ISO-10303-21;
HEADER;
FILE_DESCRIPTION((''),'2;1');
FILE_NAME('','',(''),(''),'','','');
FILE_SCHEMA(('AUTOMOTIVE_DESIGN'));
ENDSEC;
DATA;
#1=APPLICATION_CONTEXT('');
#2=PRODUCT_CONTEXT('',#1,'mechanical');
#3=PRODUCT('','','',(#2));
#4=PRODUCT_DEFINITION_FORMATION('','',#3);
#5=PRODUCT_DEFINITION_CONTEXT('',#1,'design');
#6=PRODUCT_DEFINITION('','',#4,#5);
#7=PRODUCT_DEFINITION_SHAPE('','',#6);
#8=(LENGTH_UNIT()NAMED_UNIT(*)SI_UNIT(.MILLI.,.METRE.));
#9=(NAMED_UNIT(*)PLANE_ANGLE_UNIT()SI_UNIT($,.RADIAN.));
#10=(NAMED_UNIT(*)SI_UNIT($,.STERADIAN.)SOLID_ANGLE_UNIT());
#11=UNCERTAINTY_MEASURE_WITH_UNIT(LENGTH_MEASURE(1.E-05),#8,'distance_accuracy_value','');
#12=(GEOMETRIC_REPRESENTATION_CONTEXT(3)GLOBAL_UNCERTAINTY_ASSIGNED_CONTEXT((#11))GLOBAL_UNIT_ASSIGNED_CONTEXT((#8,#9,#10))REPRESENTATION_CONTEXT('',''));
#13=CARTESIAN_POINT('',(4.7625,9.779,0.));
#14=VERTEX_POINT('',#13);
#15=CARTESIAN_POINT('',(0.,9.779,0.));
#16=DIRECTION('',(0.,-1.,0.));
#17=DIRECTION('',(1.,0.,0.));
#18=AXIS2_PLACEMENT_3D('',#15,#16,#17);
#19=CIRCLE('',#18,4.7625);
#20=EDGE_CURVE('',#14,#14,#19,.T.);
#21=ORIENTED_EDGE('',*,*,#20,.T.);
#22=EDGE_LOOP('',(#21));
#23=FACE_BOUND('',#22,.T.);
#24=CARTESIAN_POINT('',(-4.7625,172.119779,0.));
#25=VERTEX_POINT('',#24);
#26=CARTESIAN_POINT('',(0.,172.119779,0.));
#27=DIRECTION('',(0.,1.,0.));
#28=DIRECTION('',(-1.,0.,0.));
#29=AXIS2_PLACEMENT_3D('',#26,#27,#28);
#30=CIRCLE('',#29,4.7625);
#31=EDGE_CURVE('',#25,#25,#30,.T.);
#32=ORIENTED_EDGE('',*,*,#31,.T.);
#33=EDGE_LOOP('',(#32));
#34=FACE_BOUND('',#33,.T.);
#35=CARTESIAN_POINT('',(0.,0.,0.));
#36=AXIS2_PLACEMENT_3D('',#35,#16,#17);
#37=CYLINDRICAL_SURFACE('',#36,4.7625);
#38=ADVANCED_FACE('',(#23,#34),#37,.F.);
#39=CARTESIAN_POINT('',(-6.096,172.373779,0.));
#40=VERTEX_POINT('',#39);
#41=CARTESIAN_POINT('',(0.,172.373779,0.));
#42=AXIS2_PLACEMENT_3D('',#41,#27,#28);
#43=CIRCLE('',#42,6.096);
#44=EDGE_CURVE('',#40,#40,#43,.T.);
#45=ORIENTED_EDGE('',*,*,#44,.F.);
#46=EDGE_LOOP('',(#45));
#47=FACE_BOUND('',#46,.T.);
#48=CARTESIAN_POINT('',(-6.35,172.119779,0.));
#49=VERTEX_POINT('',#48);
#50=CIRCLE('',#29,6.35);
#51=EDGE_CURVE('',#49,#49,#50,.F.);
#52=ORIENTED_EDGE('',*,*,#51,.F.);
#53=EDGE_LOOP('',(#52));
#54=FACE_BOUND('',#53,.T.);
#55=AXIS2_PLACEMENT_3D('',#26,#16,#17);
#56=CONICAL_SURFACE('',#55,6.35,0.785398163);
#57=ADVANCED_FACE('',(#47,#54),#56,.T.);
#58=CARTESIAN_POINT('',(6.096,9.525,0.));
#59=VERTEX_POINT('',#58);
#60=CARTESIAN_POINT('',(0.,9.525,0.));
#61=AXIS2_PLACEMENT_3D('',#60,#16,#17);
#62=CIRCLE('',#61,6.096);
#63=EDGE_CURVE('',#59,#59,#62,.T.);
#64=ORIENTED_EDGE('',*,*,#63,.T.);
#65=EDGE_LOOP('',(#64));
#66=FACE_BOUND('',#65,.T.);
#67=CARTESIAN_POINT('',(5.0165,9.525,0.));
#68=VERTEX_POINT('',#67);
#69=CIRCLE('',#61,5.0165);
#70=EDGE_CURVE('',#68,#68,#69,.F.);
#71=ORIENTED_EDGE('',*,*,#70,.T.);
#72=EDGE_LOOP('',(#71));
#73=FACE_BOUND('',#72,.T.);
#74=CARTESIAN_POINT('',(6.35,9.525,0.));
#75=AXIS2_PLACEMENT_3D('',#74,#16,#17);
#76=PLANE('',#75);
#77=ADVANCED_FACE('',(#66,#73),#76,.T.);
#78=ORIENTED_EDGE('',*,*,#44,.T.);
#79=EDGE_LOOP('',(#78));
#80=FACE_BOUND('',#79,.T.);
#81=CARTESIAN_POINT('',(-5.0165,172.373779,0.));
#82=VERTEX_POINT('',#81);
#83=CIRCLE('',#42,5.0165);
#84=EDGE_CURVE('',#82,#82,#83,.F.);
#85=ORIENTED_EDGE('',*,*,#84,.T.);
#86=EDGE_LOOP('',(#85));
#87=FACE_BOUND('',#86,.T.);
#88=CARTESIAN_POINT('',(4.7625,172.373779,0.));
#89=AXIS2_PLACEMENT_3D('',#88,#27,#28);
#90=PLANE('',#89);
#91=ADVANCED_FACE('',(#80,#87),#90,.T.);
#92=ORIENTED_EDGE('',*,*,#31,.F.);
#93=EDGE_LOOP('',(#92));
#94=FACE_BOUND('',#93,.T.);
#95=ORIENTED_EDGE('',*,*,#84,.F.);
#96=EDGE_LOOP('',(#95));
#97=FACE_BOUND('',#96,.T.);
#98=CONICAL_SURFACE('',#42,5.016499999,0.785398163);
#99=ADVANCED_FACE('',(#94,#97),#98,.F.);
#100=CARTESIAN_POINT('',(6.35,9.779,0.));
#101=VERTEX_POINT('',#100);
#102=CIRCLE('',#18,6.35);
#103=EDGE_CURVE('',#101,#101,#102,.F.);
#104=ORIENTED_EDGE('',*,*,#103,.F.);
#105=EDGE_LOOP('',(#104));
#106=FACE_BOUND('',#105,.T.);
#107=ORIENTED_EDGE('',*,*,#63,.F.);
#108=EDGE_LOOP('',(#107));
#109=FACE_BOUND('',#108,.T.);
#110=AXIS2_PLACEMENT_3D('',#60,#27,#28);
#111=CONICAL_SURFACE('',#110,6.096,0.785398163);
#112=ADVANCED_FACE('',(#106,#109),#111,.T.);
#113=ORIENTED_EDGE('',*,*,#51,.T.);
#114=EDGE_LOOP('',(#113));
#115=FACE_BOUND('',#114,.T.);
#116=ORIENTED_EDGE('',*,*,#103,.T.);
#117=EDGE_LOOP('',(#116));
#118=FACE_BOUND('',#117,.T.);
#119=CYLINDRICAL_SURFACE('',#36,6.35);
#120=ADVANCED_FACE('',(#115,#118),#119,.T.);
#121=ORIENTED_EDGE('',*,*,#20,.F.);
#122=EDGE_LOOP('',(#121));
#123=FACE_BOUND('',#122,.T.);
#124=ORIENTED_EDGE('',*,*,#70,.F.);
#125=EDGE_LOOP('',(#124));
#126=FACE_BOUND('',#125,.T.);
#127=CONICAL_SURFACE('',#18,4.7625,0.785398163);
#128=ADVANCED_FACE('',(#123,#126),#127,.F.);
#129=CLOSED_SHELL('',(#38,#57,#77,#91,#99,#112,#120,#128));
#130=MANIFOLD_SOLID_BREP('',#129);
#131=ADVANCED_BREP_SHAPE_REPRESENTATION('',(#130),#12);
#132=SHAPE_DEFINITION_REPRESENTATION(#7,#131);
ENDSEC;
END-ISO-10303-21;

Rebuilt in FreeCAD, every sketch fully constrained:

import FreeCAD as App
import Part
import Sketcher
Q = App.Units.Quantity


def edges_at(feature, points):
    """Names of the edges that pass closest to the given points."""
    edges = feature.Shape.Edges
    near = lambda p: min(range(len(edges)), key=lambda i: edges[i].distToShape(Part.Vertex(*p))[0])
    return sorted({f"Edge{near(p) + 1}" for p in points})

doc = App.newDocument("Part")
body = doc.addObject("PartDesign::Body", "Body")

sketch1 = body.newObject("Sketcher::SketchObject", "Sketch")
sketch1.AttachmentSupport = (doc.getObject("XY_Plane"), [""])
sketch1.MapMode = "FlatFace"
sketch1.addGeometry(Part.LineSegment(App.Vector(4.7625, 172.373779, 0), App.Vector(4.7625, 9.525, 0)), False)
sketch1.addGeometry(Part.LineSegment(App.Vector(4.7625, 9.525, 0), App.Vector(6.35, 9.525, 0)), False)
sketch1.addGeometry(Part.LineSegment(App.Vector(6.35, 9.525, 0), App.Vector(6.35, 172.373779, 0)), False)
sketch1.addGeometry(Part.LineSegment(App.Vector(6.35, 172.373779, 0), App.Vector(4.7625, 172.373779, 0)), False)
sketch1.addConstraint(Sketcher.Constraint("Coincident", 0, 2, 1, 1))
sketch1.addConstraint(Sketcher.Constraint("Coincident", 1, 2, 2, 1))
sketch1.addConstraint(Sketcher.Constraint("Coincident", 2, 2, 3, 1))
sketch1.addConstraint(Sketcher.Constraint("Coincident", 3, 2, 0, 1))
sketch1.addConstraint(Sketcher.Constraint("Vertical", 0))
sketch1.addConstraint(Sketcher.Constraint("Horizontal", 1))
sketch1.addConstraint(Sketcher.Constraint("Vertical", 2))
sketch1.addConstraint(Sketcher.Constraint("Horizontal", 3))
sketch1.addConstraint(Sketcher.Constraint("DistanceX", 1, 1, 1, 2, Q("0.0625 in")))
sketch1.addConstraint(Sketcher.Constraint("DistanceX", -1, 1, 1, 2, Q("0.25 in")))
sketch1.addConstraint(Sketcher.Constraint("DistanceY", -1, 1, 0, 2, Q("0.375 in")))
sketch1.addConstraint(Sketcher.Constraint("DistanceY", 0, 2, 0, 1, Q("162.848779 mm")))
revolution = body.newObject("PartDesign::Revolution", "Revolution")
revolution.Profile = sketch1
revolution.ReferenceAxis = (sketch1, ["V_Axis"])
revolution.Angle = 360
doc.recompute()

chamfer = body.newObject("PartDesign::Chamfer", "Chamfer")
chamfer.Base = (revolution, edges_at(revolution, [
    (-6.35, 9.525, 0),
    (-6.35, 172.374, 0),
    (-4.763, 172.374, 0),
    (-4.763, 9.525, 0),
]))
chamfer.Size = Q("0.01 in")

doc.recompute()
